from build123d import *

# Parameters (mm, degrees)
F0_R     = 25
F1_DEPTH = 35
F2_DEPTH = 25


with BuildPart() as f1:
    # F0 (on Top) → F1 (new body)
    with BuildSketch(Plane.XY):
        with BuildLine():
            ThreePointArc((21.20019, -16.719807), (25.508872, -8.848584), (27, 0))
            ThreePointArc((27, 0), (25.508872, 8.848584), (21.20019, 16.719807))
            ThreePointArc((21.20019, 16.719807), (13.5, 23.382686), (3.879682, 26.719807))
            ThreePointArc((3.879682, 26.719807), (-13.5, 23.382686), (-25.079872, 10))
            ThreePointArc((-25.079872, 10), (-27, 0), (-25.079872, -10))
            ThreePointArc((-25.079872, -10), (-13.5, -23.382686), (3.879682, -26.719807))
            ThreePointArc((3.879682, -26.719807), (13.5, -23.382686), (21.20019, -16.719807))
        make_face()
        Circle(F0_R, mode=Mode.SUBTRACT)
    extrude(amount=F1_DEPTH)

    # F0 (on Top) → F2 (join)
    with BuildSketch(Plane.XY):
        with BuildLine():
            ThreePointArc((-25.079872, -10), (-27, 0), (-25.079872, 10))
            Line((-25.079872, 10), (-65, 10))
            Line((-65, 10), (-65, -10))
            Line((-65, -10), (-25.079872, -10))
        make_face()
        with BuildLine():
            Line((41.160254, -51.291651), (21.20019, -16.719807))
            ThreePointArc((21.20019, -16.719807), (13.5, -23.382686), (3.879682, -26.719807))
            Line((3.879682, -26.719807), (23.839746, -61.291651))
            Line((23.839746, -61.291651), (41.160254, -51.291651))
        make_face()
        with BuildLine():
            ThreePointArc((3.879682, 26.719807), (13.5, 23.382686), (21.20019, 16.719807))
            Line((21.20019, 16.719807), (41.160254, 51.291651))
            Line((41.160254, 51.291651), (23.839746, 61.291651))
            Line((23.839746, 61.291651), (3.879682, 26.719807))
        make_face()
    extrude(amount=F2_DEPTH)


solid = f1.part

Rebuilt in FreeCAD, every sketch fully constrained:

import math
import FreeCAD as App
import Part
import Sketcher
from FreeCAD import Vector
Q = App.Units.Quantity

doc = App.newDocument("Part")
body = doc.addObject("PartDesign::Body", "Body")

# Sketch on XY plane
sketch1 = body.newObject("Sketcher::SketchObject", "Sketch")
sketch1.AttachmentSupport = (doc.getObject("XY_Plane"), [""])
sketch1.MapMode = "FlatFace"
sketch1.addGeometry(Part.ArcOfCircle(Part.Circle(Vector(-0.000004, 0.000001, 0), Vector(0, 0, 1), 27.000004), math.radians(-38.261537), math.radians(-0.000003)), False)
sketch1.addGeometry(Part.ArcOfCircle(Part.Circle(Vector(-0.000004, -0.000001, 0), Vector(0, 0, 1), 27.000004), math.radians(0.000003), math.radians(38.261537)), False)
sketch1.addGeometry(Part.ArcOfCircle(Part.Circle(Vector(-0.000001, -0.000001, 0), Vector(0, 0, 1), 27.000002), math.radians(38.261541), math.radians(81.738459)), False)
sketch1.addGeometry(Part.ArcOfCircle(Part.Circle(Vector(0, 0.000001, 0), Vector(0, 0, 1), 27), math.radians(81.738462), math.radians(158.26154)), False)
sketch1.addGeometry(Part.ArcOfCircle(Part.Circle(Vector(-0.000005, 0, 0), Vector(0, 0, 1), 26.999995), math.radians(158.261535), math.radians(201.738465)), False)
sketch1.addGeometry(Part.ArcOfCircle(Part.Circle(Vector(0, -0.000001, 0), Vector(0, 0, 1), 27), math.radians(-158.26154), math.radians(-81.738462)), False)
sketch1.addGeometry(Part.ArcOfCircle(Part.Circle(Vector(-0.000001, 0.000001, 0), Vector(0, 0, 1), 27.000002), math.radians(-81.738459), math.radians(-38.261541)), False)
sketch1.addGeometry(Part.Circle(Vector(0, 0, 0), Vector(0, 0, 1), 25), False)
sketch1.addConstraint(Sketcher.Constraint("Tangent", 0, 2, 1, 1))
sketch1.addConstraint(Sketcher.Constraint("Tangent", 1, 2, 2, 1))
sketch1.addConstraint(Sketcher.Constraint("Tangent", 2, 2, 3, 1))
sketch1.addConstraint(Sketcher.Constraint("Tangent", 3, 2, 4, 1))
sketch1.addConstraint(Sketcher.Constraint("Tangent", 4, 2, 5, 1))
sketch1.addConstraint(Sketcher.Constraint("Tangent", 5, 2, 6, 1))
sketch1.addConstraint(Sketcher.Constraint("Tangent", 6, 2, 0, 1))
sketch1.addConstraint(Sketcher.Constraint("Coincident", 0, 3, -1, 1))
sketch1.addConstraint(Sketcher.Constraint("Coincident", 2, 3, -1, 1))
sketch1.addConstraint(Sketcher.Constraint("Coincident", 4, 3, -1, 1))
sketch1.addConstraint(Sketcher.Constraint("Coincident", 7, 3, -1, 1))
sketch1.addConstraint(Sketcher.Constraint("PointOnObject", 0, 2, -1))
sketch1.addConstraint(Sketcher.Constraint("Vertical", 3, 2, 4, 2))
sketch1.addConstraint(Sketcher.Constraint("Vertical", 2, 2, 5, 2))
sketch1.addConstraint(Sketcher.Constraint("Vertical", 1, 2, 6, 2))
sketch1.addConstraint(Sketcher.Constraint("Diameter", 7, 50.0))
sketch1.addConstraint(Sketcher.Constraint("Radius", 2, 27.000002))
sketch1.addConstraint(Sketcher.Constraint("DistanceY", -1, 1, 3, 2, 10.0))
sketch1.addConstraint(Sketcher.Constraint("DistanceY", 1, 2, 2, 2, 10.0))
sketch1.addConstraint(Sketcher.Constraint("DistanceX", -1, 1, 1, 2, 21.20019))
pad1 = body.newObject("PartDesign::Pad", "Pad")
pad1.Profile = sketch1
pad1.Length = 35

# Sketch on XY plane
sketch2 = body.newObject("Sketcher::SketchObject", "Sketch001")
sketch2.AttachmentSupport = (doc.getObject("XY_Plane"), [""])
sketch2.MapMode = "FlatFace"
sketch2.addGeometry(Part.ArcOfCircle(Part.Circle(Vector(-0.000005, 0, 0), Vector(0, 0, 1), 26.999995), math.radians(158.261535), math.radians(201.738465)), False)
sketch2.addGeometry(Part.LineSegment(Vector(-25.079872, 10, 0), Vector(-65, 10, 0)), False)
sketch2.addGeometry(Part.LineSegment(Vector(-65, 10, 0), Vector(-65, -10, 0)), False)
sketch2.addGeometry(Part.LineSegment(Vector(-65, -10, 0), Vector(-25.079872, -10, 0)), False)
sketch2.addGeometry(Part.LineSegment(Vector(41.160254, -51.291651, 0), Vector(21.20019, -16.719807, 0)), False)
sketch2.addGeometry(Part.ArcOfCircle(Part.Circle(Vector(-0.000001, 0.000001, 0), Vector(0, 0, 1), 27.000002), math.radians(-81.738459), math.radians(-38.261541)), False)
sketch2.addGeometry(Part.LineSegment(Vector(3.879682, -26.719807, 0), Vector(23.839746, -61.291651, 0)), False)
sketch2.addGeometry(Part.LineSegment(Vector(23.839746, -61.291651, 0), Vector(41.160254, -51.291651, 0)), False)
sketch2.addGeometry(Part.ArcOfCircle(Part.Circle(Vector(-0.000001, -0.000001, 0), Vector(0, 0, 1), 27.000002), math.radians(38.261541), math.radians(81.738459)), False)
sketch2.addGeometry(Part.LineSegment(Vector(21.20019, 16.719807, 0), Vector(41.160254, 51.291651, 0)), False)
sketch2.addGeometry(Part.LineSegment(Vector(41.160254, 51.291651, 0), Vector(23.839746, 61.291651, 0)), False)
sketch2.addGeometry(Part.LineSegment(Vector(23.839746, 61.291651, 0), Vector(3.879682, 26.719807, 0)), False)
sketch2.addConstraint(Sketcher.Constraint("Coincident", 0, 1, 1, 1))
sketch2.addConstraint(Sketcher.Constraint("Coincident", 1, 2, 2, 1))
sketch2.addConstraint(Sketcher.Constraint("Coincident", 2, 2, 3, 1))
sketch2.addConstraint(Sketcher.Constraint("Coincident", 3, 2, 0, 2))
sketch2.addConstraint(Sketcher.Constraint("Coincident", 4, 2, 5, 2))
sketch2.addConstraint(Sketcher.Constraint("Coincident", 5, 1, 6, 1))
sketch2.addConstraint(Sketcher.Constraint("Coincident", 6, 2, 7, 1))
sketch2.addConstraint(Sketcher.Constraint("Coincident", 7, 2, 4, 1))
sketch2.addConstraint(Sketcher.Constraint("Coincident", 8, 1, 9, 1))
sketch2.addConstraint(Sketcher.Constraint("Coincident", 9, 2, 10, 1))
sketch2.addConstraint(Sketcher.Constraint("Coincident", 10, 2, 11, 1))
sketch2.addConstraint(Sketcher.Constraint("Coincident", 11, 2, 8, 2))
sketch2.addConstraint(Sketcher.Constraint("Horizontal", 1))
sketch2.addConstraint(Sketcher.Constraint("Vertical", 2))
sketch2.addConstraint(Sketcher.Constraint("Horizontal", 3))
sketch2.addConstraint(Sketcher.Constraint("Coincident", 0, 3, -1, 1))
sketch2.addConstraint(Sketcher.Constraint("Coincident", 5, 3, -1, 1))
sketch2.addConstraint(Sketcher.Constraint("Coincident", 8, 3, -1, 1))
sketch2.addConstraint(Sketcher.Constraint("Equal", 5, 8))
sketch2.addConstraint(Sketcher.Constraint("Symmetric", 7, 2, 9, 2, -1))
sketch2.addConstraint(Sketcher.Constraint("Symmetric", 6, 2, 10, 2, -1))
sketch2.addConstraint(Sketcher.Constraint("Parallel", 4, 6))
sketch2.addConstraint(Sketcher.Constraint("Perpendicular", 6, 7))
sketch2.addConstraint(Sketcher.Constraint("Perpendicular", 9, 10))
sketch2.addConstraint(Sketcher.Constraint("Perpendicular", 10, 11))
sketch2.addConstraint(Sketcher.Constraint("Vertical", 0, 1, 3, 2))
sketch2.addConstraint(Sketcher.Constraint("Equal", 4, 6))
sketch2.addConstraint(Sketcher.Constraint("Radius", 5, 27.000002))
sketch2.addConstraint(Sketcher.Constraint("DistanceY", 2, 2, 2, 1, 20.0))
sketch2.addConstraint(Sketcher.Constraint("Angle", 4, Q("120.000001 deg")))
sketch2.addConstraint(Sketcher.Constraint("Distance", 7, 20.0))
sketch2.addConstraint(Sketcher.Constraint("DistanceX", 1, 2, -1, 1, 65.0))
sketch2.addConstraint(Sketcher.Constraint("Radius", 0, 26.999995))
sketch2.addConstraint(Sketcher.Constraint("DistanceY", 6, 2, -1, 1, 61.291651))
pad2 = body.newObject("PartDesign::Pad", "Pad001")
pad2.Profile = sketch2
pad2.Length = 25

doc.recompute()
